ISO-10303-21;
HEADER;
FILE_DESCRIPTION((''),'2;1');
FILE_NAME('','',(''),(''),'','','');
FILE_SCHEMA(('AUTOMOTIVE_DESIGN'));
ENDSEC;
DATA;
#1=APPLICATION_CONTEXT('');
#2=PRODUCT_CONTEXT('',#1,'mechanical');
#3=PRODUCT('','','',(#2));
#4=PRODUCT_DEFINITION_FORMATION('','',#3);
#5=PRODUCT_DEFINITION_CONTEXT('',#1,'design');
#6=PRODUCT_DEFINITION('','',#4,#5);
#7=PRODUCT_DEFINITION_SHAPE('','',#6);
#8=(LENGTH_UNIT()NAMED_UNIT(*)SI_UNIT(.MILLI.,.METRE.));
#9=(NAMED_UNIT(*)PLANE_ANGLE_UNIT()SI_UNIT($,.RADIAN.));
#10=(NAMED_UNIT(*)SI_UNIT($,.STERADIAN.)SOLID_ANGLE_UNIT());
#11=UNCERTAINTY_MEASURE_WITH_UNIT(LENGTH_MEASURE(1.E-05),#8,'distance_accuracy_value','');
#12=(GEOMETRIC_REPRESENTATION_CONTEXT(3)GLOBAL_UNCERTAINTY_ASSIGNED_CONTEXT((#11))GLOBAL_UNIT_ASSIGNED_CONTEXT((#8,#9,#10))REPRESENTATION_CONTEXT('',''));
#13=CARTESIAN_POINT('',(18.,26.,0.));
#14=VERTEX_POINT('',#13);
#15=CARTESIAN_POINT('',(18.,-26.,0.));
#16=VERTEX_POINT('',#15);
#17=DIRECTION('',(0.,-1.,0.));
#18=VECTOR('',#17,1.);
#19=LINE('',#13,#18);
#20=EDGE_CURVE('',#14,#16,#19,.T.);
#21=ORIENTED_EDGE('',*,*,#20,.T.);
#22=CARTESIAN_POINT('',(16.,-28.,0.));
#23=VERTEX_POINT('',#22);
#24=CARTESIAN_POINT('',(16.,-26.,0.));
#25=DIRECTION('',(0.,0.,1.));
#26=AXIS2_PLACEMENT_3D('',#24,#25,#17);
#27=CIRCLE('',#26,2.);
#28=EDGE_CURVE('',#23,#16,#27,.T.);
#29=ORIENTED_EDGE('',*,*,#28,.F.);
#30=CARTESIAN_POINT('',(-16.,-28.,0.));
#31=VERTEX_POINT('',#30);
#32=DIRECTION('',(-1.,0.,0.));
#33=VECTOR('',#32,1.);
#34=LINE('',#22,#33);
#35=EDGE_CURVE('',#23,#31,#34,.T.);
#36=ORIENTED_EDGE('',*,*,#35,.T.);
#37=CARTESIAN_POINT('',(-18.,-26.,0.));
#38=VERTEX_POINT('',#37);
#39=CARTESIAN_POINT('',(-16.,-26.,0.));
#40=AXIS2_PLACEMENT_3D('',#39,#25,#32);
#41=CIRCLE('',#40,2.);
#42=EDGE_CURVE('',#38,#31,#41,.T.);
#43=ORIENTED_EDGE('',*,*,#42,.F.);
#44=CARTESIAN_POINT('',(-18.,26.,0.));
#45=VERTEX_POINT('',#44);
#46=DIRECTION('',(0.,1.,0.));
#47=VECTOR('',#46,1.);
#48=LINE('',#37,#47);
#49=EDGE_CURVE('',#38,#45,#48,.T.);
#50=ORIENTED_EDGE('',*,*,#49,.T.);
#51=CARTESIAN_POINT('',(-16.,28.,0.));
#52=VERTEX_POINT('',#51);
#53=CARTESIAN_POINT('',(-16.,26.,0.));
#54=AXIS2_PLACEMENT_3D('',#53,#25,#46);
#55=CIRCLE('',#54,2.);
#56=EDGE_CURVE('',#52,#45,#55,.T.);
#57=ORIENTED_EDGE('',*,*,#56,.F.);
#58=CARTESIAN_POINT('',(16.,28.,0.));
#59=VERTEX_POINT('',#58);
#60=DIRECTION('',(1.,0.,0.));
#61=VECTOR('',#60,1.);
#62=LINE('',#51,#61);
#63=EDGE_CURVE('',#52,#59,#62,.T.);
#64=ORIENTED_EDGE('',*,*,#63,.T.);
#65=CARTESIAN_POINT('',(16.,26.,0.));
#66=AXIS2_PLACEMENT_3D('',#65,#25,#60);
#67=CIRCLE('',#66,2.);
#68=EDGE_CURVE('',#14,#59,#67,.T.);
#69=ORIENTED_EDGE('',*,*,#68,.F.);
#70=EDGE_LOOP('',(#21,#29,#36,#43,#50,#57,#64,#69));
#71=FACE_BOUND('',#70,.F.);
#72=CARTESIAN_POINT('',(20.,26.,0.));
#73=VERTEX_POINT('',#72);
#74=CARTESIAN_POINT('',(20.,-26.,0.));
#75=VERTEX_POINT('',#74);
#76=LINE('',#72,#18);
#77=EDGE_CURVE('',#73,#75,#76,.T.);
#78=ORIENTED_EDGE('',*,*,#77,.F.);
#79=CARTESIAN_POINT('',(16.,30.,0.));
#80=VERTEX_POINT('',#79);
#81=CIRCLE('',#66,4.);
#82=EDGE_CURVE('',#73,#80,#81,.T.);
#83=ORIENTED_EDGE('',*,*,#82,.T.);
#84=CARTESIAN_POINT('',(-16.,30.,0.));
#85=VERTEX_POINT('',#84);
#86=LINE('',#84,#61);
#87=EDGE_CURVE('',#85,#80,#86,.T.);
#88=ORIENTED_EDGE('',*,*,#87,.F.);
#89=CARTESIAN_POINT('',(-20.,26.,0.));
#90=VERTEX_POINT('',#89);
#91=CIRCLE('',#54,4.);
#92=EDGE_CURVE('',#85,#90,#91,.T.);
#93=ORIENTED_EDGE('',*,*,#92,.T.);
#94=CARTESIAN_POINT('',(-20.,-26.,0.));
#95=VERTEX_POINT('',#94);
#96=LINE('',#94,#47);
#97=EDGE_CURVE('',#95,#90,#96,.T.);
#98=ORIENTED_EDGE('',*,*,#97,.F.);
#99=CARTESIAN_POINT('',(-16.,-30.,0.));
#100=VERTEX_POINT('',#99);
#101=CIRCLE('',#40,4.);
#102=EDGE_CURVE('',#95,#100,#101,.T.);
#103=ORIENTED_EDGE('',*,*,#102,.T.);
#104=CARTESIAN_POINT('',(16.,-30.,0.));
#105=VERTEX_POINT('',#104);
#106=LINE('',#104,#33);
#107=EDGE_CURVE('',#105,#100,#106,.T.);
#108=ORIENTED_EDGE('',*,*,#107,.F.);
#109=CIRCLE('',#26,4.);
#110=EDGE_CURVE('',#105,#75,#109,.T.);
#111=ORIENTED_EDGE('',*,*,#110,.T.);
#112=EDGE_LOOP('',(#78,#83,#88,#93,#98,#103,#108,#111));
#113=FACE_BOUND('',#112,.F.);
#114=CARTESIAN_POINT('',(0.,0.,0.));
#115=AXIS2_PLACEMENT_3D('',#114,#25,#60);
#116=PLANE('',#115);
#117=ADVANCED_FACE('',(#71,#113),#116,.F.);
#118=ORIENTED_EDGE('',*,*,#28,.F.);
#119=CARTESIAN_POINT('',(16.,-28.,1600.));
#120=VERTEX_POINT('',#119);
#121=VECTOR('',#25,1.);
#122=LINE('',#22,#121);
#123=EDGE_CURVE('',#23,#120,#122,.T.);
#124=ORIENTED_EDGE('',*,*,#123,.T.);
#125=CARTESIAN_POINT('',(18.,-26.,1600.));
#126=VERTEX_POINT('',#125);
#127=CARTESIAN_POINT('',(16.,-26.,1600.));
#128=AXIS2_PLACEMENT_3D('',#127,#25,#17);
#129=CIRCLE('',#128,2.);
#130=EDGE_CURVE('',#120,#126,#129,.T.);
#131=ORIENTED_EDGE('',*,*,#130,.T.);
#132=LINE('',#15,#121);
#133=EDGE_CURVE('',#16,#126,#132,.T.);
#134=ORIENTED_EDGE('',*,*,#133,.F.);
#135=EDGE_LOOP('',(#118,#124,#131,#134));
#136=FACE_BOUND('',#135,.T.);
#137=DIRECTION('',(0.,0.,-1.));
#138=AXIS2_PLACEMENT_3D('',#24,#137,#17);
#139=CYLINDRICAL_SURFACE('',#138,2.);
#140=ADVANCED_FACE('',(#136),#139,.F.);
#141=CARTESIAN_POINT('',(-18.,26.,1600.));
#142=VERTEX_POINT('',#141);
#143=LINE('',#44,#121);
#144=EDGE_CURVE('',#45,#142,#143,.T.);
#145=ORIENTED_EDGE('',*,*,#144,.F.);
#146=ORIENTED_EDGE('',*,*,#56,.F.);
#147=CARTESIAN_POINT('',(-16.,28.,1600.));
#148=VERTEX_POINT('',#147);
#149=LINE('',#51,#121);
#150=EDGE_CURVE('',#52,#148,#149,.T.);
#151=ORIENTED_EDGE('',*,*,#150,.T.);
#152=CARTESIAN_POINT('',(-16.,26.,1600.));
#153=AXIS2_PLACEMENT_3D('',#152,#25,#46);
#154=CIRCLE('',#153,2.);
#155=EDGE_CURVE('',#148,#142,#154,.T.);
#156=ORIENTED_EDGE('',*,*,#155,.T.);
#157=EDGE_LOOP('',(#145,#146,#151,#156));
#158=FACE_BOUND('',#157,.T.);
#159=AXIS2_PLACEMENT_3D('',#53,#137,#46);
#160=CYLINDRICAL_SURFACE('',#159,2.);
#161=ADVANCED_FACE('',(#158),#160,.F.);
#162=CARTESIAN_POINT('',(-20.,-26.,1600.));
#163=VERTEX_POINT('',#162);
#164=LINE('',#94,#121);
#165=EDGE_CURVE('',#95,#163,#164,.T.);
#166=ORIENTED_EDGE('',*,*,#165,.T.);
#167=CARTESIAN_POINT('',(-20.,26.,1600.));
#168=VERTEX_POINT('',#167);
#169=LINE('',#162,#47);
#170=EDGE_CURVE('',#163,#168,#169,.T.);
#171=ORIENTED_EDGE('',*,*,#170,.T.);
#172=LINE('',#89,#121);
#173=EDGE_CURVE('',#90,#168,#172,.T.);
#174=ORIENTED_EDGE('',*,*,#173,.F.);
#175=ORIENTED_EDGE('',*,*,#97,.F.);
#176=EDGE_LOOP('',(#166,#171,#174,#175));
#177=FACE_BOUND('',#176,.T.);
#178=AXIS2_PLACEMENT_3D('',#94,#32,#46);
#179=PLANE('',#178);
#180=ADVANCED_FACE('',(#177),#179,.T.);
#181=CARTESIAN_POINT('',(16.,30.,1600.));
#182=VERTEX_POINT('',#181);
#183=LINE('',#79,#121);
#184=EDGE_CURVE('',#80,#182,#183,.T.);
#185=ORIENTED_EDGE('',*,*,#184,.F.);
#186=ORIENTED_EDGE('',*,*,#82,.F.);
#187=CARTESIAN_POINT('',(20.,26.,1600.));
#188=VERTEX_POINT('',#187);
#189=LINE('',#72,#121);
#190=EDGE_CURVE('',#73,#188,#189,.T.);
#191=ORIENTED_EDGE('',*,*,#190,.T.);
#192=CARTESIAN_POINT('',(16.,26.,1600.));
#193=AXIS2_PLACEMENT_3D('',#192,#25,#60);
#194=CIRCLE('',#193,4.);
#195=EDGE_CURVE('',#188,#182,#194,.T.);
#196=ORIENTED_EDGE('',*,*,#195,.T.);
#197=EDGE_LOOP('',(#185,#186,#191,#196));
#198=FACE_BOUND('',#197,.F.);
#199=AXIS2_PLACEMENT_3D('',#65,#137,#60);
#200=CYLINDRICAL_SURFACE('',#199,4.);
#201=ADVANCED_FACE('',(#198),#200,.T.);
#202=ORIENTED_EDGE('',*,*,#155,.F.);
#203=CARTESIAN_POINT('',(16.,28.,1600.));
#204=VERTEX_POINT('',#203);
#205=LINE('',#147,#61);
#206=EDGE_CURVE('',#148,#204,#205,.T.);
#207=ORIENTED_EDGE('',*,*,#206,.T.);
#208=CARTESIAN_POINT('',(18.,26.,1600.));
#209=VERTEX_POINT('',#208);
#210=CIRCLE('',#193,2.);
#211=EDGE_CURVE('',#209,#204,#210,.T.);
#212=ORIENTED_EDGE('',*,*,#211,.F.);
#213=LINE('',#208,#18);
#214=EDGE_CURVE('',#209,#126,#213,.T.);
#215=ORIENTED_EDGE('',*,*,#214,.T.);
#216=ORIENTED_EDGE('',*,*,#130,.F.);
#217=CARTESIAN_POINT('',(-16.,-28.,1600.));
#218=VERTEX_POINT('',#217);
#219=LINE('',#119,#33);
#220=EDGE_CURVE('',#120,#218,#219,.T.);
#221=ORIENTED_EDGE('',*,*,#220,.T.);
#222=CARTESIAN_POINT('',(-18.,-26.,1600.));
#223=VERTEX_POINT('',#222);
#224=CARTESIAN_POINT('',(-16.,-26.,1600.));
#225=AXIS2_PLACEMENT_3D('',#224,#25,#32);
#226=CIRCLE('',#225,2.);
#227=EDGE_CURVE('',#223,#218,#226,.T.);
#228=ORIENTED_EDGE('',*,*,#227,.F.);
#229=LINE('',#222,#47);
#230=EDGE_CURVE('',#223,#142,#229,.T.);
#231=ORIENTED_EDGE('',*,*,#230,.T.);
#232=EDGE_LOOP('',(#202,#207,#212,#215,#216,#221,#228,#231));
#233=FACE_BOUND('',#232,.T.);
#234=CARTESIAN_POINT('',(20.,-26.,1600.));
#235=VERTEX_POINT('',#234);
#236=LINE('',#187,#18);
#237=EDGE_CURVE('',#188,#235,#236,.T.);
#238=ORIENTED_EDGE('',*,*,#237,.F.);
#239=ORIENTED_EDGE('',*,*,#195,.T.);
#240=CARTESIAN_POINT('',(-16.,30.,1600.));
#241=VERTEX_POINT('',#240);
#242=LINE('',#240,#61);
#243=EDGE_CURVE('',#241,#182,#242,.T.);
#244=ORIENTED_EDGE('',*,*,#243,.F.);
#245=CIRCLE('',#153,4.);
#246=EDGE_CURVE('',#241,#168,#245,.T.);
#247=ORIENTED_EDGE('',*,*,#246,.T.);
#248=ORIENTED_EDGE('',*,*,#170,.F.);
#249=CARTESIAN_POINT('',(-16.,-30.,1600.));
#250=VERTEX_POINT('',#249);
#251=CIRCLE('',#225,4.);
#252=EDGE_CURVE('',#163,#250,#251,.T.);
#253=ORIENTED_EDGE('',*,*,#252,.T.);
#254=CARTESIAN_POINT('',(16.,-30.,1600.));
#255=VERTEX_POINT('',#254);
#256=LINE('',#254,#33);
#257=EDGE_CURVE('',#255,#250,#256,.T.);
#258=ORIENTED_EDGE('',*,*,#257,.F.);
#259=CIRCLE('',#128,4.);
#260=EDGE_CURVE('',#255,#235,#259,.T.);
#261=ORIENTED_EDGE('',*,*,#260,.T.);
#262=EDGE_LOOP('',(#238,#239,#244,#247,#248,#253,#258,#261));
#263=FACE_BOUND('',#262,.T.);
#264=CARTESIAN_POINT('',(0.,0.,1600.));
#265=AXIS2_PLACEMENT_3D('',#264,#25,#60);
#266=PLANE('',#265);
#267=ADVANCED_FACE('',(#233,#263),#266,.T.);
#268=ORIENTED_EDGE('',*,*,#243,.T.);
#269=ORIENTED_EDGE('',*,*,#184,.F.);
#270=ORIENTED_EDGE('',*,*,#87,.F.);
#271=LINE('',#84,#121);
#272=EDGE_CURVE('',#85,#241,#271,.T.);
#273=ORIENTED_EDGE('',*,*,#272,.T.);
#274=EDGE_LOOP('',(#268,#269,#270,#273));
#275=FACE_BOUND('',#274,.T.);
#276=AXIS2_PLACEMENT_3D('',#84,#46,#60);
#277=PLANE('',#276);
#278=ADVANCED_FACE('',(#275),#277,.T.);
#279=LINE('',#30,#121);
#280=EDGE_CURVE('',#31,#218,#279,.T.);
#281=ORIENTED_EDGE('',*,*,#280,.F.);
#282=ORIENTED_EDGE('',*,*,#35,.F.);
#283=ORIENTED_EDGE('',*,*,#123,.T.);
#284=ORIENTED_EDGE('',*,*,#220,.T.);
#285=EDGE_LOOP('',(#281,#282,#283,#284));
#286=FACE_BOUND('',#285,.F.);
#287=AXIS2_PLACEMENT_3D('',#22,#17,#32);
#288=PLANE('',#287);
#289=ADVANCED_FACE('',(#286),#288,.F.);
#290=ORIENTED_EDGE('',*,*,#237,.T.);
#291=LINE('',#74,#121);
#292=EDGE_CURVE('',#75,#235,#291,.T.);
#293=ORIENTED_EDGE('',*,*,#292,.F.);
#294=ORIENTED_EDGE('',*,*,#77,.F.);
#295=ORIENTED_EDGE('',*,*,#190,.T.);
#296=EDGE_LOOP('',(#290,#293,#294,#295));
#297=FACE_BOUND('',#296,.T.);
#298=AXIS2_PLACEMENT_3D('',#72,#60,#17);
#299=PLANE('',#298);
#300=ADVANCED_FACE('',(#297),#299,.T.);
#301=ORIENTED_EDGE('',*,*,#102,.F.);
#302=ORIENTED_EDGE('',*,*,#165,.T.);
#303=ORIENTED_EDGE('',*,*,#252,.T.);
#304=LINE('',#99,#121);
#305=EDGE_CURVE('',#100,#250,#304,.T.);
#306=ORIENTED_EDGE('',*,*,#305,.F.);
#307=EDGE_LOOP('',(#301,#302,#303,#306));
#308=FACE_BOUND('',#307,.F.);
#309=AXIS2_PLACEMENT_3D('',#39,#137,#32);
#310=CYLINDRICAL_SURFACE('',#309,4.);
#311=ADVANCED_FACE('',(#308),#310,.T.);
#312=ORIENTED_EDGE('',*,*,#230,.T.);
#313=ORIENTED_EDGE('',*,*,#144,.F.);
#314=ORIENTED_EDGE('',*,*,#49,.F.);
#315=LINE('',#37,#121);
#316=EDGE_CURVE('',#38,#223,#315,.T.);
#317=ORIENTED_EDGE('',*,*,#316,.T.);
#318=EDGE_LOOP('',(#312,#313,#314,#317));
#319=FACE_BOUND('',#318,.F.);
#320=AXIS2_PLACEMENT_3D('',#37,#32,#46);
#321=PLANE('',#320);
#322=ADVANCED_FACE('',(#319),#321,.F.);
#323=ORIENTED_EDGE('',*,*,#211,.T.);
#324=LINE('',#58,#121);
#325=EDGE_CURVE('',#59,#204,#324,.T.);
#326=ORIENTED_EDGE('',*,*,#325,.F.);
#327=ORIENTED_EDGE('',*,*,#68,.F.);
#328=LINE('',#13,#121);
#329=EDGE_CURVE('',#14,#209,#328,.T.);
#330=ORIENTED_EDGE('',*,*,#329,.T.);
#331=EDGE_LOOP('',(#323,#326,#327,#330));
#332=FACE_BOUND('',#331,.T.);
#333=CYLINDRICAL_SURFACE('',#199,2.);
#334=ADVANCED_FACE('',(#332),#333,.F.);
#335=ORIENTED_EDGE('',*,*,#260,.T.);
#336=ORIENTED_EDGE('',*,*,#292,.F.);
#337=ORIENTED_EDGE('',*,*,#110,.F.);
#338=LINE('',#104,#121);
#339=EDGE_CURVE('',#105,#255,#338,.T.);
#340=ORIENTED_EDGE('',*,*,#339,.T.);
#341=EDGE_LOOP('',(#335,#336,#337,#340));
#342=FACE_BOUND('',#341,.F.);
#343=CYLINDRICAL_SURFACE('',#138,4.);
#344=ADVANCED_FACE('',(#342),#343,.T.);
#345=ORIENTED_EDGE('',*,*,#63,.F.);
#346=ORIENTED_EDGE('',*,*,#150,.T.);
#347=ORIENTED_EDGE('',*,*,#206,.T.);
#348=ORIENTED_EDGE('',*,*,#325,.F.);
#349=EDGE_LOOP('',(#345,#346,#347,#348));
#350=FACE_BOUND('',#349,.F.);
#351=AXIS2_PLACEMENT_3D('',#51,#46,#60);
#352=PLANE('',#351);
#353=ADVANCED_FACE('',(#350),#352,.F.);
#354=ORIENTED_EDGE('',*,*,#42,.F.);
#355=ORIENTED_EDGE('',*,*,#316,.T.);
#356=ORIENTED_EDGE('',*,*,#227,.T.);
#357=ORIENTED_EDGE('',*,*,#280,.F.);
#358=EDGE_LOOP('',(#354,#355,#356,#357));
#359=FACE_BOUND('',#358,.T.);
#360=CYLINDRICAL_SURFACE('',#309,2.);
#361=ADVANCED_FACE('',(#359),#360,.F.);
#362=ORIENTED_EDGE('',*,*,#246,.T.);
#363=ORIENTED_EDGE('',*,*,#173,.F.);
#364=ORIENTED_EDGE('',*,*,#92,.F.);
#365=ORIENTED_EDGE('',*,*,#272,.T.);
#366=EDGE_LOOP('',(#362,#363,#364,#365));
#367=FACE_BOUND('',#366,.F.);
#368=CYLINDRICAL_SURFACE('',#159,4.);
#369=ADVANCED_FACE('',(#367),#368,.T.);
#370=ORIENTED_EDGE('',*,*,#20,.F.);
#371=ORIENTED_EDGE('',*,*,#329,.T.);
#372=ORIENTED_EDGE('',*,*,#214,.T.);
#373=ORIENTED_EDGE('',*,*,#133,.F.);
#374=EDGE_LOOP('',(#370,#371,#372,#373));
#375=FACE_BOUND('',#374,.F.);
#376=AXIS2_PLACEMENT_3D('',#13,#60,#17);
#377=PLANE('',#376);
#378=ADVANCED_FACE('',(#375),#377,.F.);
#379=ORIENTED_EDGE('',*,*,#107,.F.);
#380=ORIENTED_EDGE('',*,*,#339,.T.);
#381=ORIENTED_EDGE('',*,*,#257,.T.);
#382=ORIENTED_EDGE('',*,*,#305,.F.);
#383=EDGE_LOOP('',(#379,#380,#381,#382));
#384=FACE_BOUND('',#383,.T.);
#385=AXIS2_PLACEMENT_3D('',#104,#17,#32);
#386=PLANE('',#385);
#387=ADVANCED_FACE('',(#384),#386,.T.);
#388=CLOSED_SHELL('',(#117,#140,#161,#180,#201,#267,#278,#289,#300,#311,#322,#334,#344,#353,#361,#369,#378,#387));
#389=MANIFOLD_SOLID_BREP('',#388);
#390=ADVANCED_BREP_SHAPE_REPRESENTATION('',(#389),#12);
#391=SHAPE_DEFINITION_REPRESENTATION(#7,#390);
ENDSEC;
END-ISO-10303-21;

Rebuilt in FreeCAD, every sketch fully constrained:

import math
import FreeCAD as App
import Part
import Sketcher
Q = App.Units.Quantity

doc = App.newDocument("Part")
body = doc.addObject("PartDesign::Body", "Body")

sketch1 = body.newObject("Sketcher::SketchObject", "Sketch")
sketch1.AttachmentSupport = (doc.getObject("XY_Plane"), [""])
sketch1.MapMode = "FlatFace"
sketch1.addGeometry(Part.LineSegment(App.Vector(-20, 26, 0), App.Vector(-20, -26, 0)), False)
sketch1.addGeometry(Part.ArcOfCircle(Part.Circle(App.Vector(-16, -26, 0), App.Vector(0, 0, 1), 4), math.radians(180), math.radians(270)), False)
sketch1.addGeometry(Part.LineSegment(App.Vector(-16, -30, 0), App.Vector(16, -30, 0)), False)
sketch1.addGeometry(Part.ArcOfCircle(Part.Circle(App.Vector(16, -26, 0), App.Vector(0, 0, 1), 4), math.radians(-90), math.radians(0)), False)
sketch1.addGeometry(Part.LineSegment(App.Vector(20, -26, 0), App.Vector(20, 26, 0)), False)
sketch1.addGeometry(Part.ArcOfCircle(Part.Circle(App.Vector(16, 26, 0), App.Vector(0, 0, 1), 4), math.radians(0), math.radians(90)), False)
sketch1.addGeometry(Part.LineSegment(App.Vector(16, 30, 0), App.Vector(-16, 30, 0)), False)
sketch1.addGeometry(Part.ArcOfCircle(Part.Circle(App.Vector(-16, 26, 0), App.Vector(0, 0, 1), 4), math.radians(90), math.radians(180)), False)
sketch1.addGeometry(Part.ArcOfCircle(Part.Circle(App.Vector(-16, 26, 0), App.Vector(0, 0, 1), 2), math.radians(90), math.radians(180)), False)
sketch1.addGeometry(Part.LineSegment(App.Vector(-16, 28, 0), App.Vector(16, 28, 0)), False)
sketch1.addGeometry(Part.ArcOfCircle(Part.Circle(App.Vector(16, 26, 0), App.Vector(0, 0, 1), 2), math.radians(0), math.radians(90)), False)
sketch1.addGeometry(Part.LineSegment(App.Vector(18, 26, 0), App.Vector(18, -26, 0)), False)
sketch1.addGeometry(Part.ArcOfCircle(Part.Circle(App.Vector(16, -26, 0), App.Vector(0, 0, 1), 2), math.radians(-90), math.radians(0)), False)
sketch1.addGeometry(Part.LineSegment(App.Vector(16, -28, 0), App.Vector(-16, -28, 0)), False)
sketch1.addGeometry(Part.ArcOfCircle(Part.Circle(App.Vector(-16, -26, 0), App.Vector(0, 0, 1), 2), math.radians(180), math.radians(270)), False)
sketch1.addGeometry(Part.LineSegment(App.Vector(-18, -26, 0), App.Vector(-18, 26, 0)), False)
sketch1.addConstraint(Sketcher.Constraint("Tangent", 0, 2, 1, 1))
sketch1.addConstraint(Sketcher.Constraint("Tangent", 1, 2, 2, 1))
sketch1.addConstraint(Sketcher.Constraint("Tangent", 2, 2, 3, 1))
sketch1.addConstraint(Sketcher.Constraint("Tangent", 3, 2, 4, 1))
sketch1.addConstraint(Sketcher.Constraint("Tangent", 4, 2, 5, 1))
sketch1.addConstraint(Sketcher.Constraint("Tangent", 5, 2, 6, 1))
sketch1.addConstraint(Sketcher.Constraint("Tangent", 6, 2, 7, 1))
sketch1.addConstraint(Sketcher.Constraint("Tangent", 7, 2, 0, 1))
sketch1.addConstraint(Sketcher.Constraint("Tangent", 8, 1, 9, 1))
sketch1.addConstraint(Sketcher.Constraint("Tangent", 9, 2, 10, 2))
sketch1.addConstraint(Sketcher.Constraint("Tangent", 10, 1, 11, 1))
sketch1.addConstraint(Sketcher.Constraint("Tangent", 11, 2, 12, 2))
sketch1.addConstraint(Sketcher.Constraint("Tangent", 12, 1, 13, 1))
sketch1.addConstraint(Sketcher.Constraint("Tangent", 13, 2, 14, 2))
sketch1.addConstraint(Sketcher.Constraint("Tangent", 14, 1, 15, 1))
sketch1.addConstraint(Sketcher.Constraint("Tangent", 15, 2, 8, 2))
sketch1.addConstraint(Sketcher.Constraint("Vertical", 0))
sketch1.addConstraint(Sketcher.Constraint("Horizontal", 2))
sketch1.addConstraint(Sketcher.Constraint("Vertical", 4))
sketch1.addConstraint(Sketcher.Constraint("Horizontal", 6))
sketch1.addConstraint(Sketcher.Constraint("Horizontal", 9))
sketch1.addConstraint(Sketcher.Constraint("Vertical", 11))
sketch1.addConstraint(Sketcher.Constraint("Horizontal", 13))
sketch1.addConstraint(Sketcher.Constraint("Vertical", 15))
sketch1.addConstraint(Sketcher.Constraint("Coincident", 8, 3, 7, 3))
sketch1.addConstraint(Sketcher.Constraint("Coincident", 10, 3, 5, 3))
sketch1.addConstraint(Sketcher.Constraint("Coincident", 12, 3, 3, 3))
sketch1.addConstraint(Sketcher.Constraint("Equal", 1, 3))
sketch1.addConstraint(Sketcher.Constraint("Equal", 3, 5))
sketch1.addConstraint(Sketcher.Constraint("Equal", 5, 7))
sketch1.addConstraint(Sketcher.Constraint("Equal", 12, 14))
sketch1.addConstraint(Sketcher.Constraint("Symmetric", 1, 3, 5, 3, -1, 1))
sketch1.addConstraint(Sketcher.Constraint("Radius", 1, Q("4 mm")))
sketch1.addConstraint(Sketcher.Constraint("Radius", 8, Q("2 mm")))
sketch1.addConstraint(Sketcher.Constraint("DistanceX", 0, 2, -1, 1, Q("20 mm")))
sketch1.addConstraint(Sketcher.Constraint("DistanceY", 1, 2, -1, 1, Q("30 mm")))
pad1 = body.newObject("PartDesign::Pad", "Pad")
pad1.Profile = sketch1
pad1.Length = 1600

doc.recompute()
